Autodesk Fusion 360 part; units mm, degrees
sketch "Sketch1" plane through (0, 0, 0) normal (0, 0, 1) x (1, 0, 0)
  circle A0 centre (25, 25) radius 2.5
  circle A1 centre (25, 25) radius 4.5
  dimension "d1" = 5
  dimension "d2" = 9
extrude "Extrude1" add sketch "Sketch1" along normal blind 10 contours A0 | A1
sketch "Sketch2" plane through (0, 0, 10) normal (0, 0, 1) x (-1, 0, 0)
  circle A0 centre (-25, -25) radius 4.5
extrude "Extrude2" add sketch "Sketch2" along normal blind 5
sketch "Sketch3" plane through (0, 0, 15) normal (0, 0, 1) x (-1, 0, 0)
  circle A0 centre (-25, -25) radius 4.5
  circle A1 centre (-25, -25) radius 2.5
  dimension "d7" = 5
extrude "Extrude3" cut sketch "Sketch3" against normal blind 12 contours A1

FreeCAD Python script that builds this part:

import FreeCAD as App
import Part
import Sketcher

V = App.Vector

doc = App.newDocument("Part")
body = doc.addObject("PartDesign::Body", "Body")

# Sketch on XY plane
sketch1 = doc.addObject("Sketcher::SketchObject", "Sketch")
body.addObject(sketch1)
sketch1.AttachmentSupport = (doc.XY_Plane, [""])
sketch1.MapMode = "FlatFace"
sketch1.addGeometry(Part.Circle(V(25, 25, 0), V(0, 0, 1), 4.5), False)
sketch1.addConstraint([
    Sketcher.Constraint("Diameter", 0, 9.0),
    Sketcher.Constraint("DistanceX", -1, 1, 0, 3, 25.0),
    Sketcher.Constraint("DistanceY", -1, 1, 0, 3, 25.0),
])
pad1 = doc.addObject("PartDesign::Pad", "Pad")
body.addObject(pad1)
pad1.Profile = sketch1
pad1.Length = 10

# Sketch on XY plane
sketch2 = doc.addObject("Sketcher::SketchObject", "Sketch001")
body.addObject(sketch2)
sketch2.AttachmentSupport = (doc.XY_Plane, [""])
sketch2.MapMode = "FlatFace"
sketch2.AttachmentOffset = App.Placement(V(0, 0, 10), App.Rotation())
sketch2.addGeometry(Part.Circle(V(25, 25, 0), V(0, 0, 1), 4.5), False)
sketch2.addConstraint([
    Sketcher.Constraint("Diameter", 0, 9.0),
    Sketcher.Constraint("DistanceX", -1, 1, 0, 3, 25.0),
    Sketcher.Constraint("DistanceY", -1, 1, 0, 3, 25.0),
])
pad2 = doc.addObject("PartDesign::Pad", "Pad001")
body.addObject(pad2)
pad2.Profile = sketch2
pad2.Length = 5

# Sketch on XY plane
sketch3 = doc.addObject("Sketcher::SketchObject", "Sketch002")
body.addObject(sketch3)
sketch3.AttachmentSupport = (doc.XY_Plane, [""])
sketch3.MapMode = "FlatFace"
sketch3.AttachmentOffset = App.Placement(V(0, 0, 15), App.Rotation())
sketch3.addGeometry(Part.Circle(V(25, 25, 0), V(0, 0, 1), 2.5), False)
sketch3.addConstraint([
    Sketcher.Constraint("Diameter", 0, 5.0),
    Sketcher.Constraint("DistanceX", -1, 1, 0, 3, 25.0),
    Sketcher.Constraint("DistanceY", -1, 1, 0, 3, 25.0),
])
pocket1 = doc.addObject("PartDesign::Pocket", "Pocket")
body.addObject(pocket1)
pocket1.Profile = sketch3
pocket1.Length = 12

doc.recompute()
